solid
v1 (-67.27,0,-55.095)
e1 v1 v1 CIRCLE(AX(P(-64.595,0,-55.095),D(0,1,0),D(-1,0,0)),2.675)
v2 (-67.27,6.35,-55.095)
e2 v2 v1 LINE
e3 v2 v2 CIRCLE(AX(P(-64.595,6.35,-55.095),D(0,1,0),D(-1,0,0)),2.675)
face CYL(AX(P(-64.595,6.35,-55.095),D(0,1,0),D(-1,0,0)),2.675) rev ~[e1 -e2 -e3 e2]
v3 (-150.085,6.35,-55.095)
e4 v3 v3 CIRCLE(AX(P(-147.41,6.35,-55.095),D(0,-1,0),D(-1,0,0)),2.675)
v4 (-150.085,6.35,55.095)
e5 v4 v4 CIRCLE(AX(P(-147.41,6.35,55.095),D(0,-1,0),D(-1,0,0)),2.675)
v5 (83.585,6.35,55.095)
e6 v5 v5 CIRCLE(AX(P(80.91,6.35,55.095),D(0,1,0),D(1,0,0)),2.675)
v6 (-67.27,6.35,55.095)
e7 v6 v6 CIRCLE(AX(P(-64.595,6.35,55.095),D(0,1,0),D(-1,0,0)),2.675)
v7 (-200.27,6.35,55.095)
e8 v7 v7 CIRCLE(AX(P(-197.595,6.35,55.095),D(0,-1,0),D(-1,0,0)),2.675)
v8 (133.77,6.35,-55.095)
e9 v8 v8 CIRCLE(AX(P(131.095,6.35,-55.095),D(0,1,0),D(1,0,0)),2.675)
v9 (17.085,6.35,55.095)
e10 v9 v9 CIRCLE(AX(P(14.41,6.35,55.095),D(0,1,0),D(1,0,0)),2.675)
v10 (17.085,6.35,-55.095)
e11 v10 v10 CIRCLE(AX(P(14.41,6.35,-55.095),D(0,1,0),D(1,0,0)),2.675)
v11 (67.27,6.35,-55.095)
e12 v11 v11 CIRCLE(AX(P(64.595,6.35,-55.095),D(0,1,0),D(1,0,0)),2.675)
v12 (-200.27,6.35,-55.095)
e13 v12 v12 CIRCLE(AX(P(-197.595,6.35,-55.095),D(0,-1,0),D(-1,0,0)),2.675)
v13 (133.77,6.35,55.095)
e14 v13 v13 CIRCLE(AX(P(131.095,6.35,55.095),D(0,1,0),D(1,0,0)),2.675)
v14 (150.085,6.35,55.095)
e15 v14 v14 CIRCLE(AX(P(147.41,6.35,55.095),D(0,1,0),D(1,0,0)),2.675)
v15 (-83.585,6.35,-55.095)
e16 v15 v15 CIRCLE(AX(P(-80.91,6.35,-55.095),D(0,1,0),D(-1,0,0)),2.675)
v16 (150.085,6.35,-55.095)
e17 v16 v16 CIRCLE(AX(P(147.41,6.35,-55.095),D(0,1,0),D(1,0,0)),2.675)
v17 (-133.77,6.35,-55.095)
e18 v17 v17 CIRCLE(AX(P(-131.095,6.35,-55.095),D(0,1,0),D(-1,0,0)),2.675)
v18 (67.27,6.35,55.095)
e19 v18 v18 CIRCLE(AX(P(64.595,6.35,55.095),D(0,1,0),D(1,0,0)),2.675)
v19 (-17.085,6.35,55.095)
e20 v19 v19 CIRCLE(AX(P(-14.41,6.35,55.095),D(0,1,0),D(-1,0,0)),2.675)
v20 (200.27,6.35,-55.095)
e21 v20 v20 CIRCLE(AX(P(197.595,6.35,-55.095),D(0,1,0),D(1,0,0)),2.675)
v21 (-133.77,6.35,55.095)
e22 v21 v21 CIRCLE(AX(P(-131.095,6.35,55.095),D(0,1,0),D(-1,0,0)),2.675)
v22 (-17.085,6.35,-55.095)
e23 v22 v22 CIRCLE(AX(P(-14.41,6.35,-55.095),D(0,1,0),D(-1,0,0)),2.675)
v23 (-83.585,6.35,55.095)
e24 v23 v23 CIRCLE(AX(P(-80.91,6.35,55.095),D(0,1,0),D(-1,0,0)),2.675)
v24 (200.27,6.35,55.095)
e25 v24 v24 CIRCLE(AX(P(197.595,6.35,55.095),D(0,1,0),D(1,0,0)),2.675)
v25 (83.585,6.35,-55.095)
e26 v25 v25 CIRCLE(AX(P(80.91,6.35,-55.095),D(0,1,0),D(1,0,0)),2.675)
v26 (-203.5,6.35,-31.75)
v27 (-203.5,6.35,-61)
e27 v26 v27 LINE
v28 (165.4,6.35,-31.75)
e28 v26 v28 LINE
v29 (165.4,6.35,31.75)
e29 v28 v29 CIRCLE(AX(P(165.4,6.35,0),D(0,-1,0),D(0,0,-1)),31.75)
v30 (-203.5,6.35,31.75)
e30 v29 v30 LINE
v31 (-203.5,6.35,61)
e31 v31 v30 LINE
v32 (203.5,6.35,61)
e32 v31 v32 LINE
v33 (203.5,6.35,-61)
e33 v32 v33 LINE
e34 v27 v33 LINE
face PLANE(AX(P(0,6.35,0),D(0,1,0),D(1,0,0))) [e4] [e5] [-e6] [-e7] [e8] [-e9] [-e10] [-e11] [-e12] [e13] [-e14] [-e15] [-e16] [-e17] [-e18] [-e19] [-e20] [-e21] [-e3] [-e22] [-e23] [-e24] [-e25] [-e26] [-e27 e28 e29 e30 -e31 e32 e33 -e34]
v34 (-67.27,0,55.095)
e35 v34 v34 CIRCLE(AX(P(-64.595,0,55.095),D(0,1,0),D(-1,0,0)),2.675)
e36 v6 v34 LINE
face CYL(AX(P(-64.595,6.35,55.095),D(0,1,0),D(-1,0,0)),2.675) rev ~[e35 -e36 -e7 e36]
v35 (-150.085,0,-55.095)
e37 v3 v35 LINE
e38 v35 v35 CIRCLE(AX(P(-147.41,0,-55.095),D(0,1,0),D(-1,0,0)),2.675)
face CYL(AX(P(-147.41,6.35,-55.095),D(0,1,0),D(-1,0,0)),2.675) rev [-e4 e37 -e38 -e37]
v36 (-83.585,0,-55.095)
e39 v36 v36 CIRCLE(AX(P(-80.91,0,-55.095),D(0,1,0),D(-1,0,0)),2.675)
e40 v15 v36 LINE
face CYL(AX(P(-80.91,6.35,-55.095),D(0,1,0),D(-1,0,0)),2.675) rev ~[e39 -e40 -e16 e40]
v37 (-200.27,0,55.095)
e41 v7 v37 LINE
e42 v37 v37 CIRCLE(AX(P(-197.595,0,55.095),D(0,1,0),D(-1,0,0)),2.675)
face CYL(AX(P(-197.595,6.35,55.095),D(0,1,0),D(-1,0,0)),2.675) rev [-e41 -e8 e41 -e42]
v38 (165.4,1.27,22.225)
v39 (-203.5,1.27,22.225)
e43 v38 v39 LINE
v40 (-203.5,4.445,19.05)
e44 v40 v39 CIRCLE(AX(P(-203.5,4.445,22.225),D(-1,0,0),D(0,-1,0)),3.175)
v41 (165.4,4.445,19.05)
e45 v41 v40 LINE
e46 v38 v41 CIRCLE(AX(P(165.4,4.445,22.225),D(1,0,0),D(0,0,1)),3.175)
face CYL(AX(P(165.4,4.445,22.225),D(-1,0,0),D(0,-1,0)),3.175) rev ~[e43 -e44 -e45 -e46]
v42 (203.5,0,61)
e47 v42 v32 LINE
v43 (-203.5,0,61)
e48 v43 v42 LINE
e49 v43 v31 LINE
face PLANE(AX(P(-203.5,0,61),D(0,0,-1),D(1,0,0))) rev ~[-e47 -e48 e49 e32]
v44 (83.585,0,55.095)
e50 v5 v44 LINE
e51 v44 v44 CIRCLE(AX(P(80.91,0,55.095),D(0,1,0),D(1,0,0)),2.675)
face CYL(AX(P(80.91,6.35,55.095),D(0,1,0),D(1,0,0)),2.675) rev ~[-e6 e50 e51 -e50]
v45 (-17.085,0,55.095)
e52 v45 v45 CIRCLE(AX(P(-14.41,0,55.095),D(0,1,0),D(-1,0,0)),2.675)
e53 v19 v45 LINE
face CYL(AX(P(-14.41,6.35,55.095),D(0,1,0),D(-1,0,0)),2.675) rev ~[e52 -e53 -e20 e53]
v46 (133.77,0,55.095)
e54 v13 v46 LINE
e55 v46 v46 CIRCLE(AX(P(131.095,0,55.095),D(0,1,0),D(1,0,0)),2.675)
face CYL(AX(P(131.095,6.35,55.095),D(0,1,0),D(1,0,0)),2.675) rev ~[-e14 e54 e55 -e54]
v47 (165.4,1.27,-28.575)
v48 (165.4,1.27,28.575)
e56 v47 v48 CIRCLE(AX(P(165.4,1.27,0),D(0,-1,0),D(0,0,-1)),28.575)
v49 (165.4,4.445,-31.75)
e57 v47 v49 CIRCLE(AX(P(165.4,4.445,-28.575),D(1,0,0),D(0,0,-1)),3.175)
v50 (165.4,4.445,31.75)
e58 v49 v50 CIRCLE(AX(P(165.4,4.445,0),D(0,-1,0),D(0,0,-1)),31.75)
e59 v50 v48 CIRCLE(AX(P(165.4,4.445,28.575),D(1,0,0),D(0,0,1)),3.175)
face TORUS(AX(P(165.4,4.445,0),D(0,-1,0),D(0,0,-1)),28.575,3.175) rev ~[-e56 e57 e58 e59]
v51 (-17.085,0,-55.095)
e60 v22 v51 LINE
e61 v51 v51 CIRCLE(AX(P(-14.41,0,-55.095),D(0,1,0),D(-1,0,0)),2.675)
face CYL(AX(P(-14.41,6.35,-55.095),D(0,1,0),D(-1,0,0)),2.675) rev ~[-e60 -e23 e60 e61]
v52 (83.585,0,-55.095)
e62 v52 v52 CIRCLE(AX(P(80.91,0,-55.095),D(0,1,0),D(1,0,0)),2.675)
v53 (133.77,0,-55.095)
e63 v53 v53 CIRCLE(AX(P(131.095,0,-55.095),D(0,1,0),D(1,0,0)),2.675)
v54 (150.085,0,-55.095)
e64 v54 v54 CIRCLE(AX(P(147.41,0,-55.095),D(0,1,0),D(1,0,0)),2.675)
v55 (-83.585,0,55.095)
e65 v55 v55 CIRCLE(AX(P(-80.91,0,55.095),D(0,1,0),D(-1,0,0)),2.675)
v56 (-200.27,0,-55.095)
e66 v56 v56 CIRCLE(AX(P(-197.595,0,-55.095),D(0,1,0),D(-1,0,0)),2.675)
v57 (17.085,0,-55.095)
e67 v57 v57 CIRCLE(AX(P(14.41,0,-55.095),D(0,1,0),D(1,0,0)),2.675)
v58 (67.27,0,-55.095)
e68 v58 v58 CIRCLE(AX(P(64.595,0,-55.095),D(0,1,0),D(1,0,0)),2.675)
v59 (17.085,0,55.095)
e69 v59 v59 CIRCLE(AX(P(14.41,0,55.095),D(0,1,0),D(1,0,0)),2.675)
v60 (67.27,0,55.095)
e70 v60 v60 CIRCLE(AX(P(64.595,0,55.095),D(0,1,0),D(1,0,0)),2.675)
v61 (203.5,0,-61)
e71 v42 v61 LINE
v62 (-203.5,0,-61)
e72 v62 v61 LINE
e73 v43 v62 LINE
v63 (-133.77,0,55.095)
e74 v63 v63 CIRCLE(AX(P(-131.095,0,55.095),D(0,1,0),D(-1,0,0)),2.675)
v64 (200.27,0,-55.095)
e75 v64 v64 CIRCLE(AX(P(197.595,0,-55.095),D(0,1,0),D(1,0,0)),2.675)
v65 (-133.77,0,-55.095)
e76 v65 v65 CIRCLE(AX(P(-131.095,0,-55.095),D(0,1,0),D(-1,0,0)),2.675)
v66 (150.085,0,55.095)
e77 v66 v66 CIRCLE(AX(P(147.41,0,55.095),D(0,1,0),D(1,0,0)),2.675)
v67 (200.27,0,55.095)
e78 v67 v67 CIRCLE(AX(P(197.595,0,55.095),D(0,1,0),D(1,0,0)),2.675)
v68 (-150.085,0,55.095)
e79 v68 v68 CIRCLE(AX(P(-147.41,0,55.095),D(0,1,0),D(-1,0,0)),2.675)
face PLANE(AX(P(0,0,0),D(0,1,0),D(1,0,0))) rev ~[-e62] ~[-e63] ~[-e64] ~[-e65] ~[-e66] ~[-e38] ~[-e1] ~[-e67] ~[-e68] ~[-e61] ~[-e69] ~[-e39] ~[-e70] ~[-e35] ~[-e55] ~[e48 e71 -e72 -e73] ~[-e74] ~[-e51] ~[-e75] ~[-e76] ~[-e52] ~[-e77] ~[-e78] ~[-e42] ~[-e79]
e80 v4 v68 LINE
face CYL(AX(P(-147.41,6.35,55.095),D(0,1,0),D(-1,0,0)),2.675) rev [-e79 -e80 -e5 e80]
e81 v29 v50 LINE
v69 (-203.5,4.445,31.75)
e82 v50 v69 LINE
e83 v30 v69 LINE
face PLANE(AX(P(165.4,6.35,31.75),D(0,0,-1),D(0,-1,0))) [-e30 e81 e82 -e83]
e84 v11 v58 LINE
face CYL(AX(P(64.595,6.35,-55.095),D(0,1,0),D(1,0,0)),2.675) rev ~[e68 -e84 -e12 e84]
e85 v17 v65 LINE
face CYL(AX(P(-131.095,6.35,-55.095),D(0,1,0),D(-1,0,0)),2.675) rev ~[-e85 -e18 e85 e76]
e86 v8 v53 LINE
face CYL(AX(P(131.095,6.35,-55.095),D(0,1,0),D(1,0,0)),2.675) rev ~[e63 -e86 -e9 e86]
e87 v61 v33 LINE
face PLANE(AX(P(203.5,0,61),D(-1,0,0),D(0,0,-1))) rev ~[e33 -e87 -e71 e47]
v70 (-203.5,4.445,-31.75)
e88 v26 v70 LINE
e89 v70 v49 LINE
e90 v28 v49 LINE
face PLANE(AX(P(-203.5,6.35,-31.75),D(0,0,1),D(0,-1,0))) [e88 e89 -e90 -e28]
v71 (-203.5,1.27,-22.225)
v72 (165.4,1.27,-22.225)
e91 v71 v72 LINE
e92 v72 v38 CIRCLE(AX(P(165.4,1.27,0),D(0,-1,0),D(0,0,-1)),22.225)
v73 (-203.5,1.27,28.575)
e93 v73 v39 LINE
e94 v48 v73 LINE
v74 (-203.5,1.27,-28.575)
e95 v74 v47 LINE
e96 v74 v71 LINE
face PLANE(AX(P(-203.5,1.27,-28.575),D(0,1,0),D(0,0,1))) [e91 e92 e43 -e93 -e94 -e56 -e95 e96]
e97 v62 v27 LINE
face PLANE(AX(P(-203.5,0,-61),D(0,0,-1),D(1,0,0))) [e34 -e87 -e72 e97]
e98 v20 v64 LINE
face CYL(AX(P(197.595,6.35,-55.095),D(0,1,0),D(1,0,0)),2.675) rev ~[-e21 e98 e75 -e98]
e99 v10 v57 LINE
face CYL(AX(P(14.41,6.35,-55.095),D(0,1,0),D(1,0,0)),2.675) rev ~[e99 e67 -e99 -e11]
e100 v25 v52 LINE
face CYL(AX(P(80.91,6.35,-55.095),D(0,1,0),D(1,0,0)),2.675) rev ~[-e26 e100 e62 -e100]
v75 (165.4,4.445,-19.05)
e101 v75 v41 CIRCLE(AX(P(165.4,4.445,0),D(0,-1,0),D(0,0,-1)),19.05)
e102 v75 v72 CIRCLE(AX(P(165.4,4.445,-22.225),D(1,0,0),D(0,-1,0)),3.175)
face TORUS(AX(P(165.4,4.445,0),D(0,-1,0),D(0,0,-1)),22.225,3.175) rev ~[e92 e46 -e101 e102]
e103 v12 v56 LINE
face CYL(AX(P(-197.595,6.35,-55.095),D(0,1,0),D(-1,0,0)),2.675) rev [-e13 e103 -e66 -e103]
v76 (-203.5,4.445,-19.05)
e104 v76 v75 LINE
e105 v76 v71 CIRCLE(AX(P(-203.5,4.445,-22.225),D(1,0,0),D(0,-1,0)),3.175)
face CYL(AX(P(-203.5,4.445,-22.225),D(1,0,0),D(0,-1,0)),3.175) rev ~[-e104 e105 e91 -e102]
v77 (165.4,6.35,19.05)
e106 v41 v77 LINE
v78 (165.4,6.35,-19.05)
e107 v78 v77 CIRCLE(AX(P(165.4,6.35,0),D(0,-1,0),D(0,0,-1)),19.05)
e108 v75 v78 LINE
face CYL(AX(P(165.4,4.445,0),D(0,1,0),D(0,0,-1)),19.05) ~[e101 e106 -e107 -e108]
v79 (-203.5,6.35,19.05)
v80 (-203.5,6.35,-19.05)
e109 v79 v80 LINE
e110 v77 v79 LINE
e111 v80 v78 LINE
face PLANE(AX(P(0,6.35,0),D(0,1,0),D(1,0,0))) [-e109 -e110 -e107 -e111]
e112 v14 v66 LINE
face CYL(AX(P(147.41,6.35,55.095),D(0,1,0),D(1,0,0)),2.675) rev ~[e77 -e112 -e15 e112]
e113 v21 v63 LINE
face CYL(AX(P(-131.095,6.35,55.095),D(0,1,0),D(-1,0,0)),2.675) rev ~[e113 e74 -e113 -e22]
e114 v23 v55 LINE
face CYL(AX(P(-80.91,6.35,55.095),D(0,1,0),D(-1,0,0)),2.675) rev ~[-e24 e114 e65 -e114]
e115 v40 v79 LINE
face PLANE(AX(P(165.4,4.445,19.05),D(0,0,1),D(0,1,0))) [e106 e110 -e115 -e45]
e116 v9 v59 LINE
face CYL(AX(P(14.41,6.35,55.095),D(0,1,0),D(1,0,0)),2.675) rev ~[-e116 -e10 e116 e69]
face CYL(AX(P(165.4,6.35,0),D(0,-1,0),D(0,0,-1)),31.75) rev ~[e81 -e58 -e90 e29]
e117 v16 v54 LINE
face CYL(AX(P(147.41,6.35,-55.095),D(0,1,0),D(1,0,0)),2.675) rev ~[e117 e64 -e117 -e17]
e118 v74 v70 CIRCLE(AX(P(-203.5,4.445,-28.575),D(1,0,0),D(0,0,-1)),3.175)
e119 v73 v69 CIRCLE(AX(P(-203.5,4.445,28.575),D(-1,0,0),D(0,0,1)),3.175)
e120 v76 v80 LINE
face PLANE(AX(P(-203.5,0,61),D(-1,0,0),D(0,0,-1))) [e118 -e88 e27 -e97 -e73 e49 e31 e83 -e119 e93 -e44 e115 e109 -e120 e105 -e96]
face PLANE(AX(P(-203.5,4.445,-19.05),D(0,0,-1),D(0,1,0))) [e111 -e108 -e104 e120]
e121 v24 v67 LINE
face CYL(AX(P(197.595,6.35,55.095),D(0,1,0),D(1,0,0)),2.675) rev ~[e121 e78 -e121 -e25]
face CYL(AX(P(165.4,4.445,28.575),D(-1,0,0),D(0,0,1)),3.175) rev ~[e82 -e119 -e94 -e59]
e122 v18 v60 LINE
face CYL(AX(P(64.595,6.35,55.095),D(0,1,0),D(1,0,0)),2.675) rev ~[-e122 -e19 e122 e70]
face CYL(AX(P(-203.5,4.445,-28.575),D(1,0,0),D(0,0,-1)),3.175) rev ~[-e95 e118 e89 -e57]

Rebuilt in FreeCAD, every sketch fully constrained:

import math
import FreeCAD as App
import Part
import Sketcher
Q = App.Units.Quantity

doc = App.newDocument("Part")
body = doc.addObject("PartDesign::Body", "Body")

# Sketch on XZ plane
sketch1 = doc.addObject("Sketcher::SketchObject", "Sketch")
body.addObject(sketch1)
sketch1.AttachmentSupport = (doc.XZ_Plane, [""])
sketch1.MapMode = "FlatFace"
sketch1.addGeometry([
    Part.LineSegment(App.Vector(-204, -61, 0), App.Vector(-204, 61, 0)),
    Part.LineSegment(App.Vector(-204, 61, 0), App.Vector(204, 61, 0)),
    Part.LineSegment(App.Vector(204, 61, 0), App.Vector(204, -61, 0)),
    Part.LineSegment(App.Vector(204, -61, 0), App.Vector(-204, -61, 0)),
], False)
sketch1.addConstraint([
    Sketcher.Constraint("Coincident", 0, 2, 1, 1),
    Sketcher.Constraint("Coincident", 1, 2, 2, 1),
    Sketcher.Constraint("Coincident", 2, 2, 3, 1),
    Sketcher.Constraint("Coincident", 3, 2, 0, 1),
    Sketcher.Constraint("Vertical", 0),
    Sketcher.Constraint("Horizontal", 1),
    Sketcher.Constraint("Vertical", 2),
    Sketcher.Constraint("Horizontal", 3),
    Sketcher.Constraint("Symmetric", 0, 2, 2, 2, -1, 1),
    Sketcher.Constraint("DistanceX", 1, 1, 1, 2, Q("407 mm")),
    Sketcher.Constraint("DistanceY", 0, 1, 0, 2, Q("122 mm")),
])
pad1 = doc.addObject("PartDesign::Pad", "Pad")
body.addObject(pad1)
pad1.Profile = sketch1
pad1.Length = Q("0.25 in")
pad1.Reversed = True

# Sketch on XZ plane
sketch2 = doc.addObject("Sketcher::SketchObject", "Sketch001")
body.addObject(sketch2)
sketch2.AttachmentSupport = (doc.XZ_Plane, [""])
sketch2.MapMode = "FlatFace"
sketch2.AttachmentOffset = App.Placement(App.Vector(0, 0, -0.25 * 25.4), App.Rotation())
sketch2.addGeometry([
    Part.Circle(App.Vector(197.6, -55.1, 0), App.Vector(0, 0, 1), 2.7),
    Part.Circle(App.Vector(197.6, 55.1, 0), App.Vector(0, 0, 1), 2.7),
    Part.Circle(App.Vector(147.4, 55.1, 0), App.Vector(0, 0, 1), 2.7),
    Part.Circle(App.Vector(147.4, -55.1, 0), App.Vector(0, 0, 1), 2.7),
], False)
sketch2.addConstraint([
    Sketcher.Constraint("Equal", 0, 1),
    Sketcher.Constraint("Equal", 1, 2),
    Sketcher.Constraint("Equal", 2, 3),
    Sketcher.Constraint("Symmetric", 0, 3, 1, 3, -1),
    Sketcher.Constraint("Symmetric", 2, 3, 3, 3, -1),
    Sketcher.Constraint("Horizontal", 1, 3, 2, 3),
    Sketcher.Constraint("Diameter", 0, Q("5.35 mm")),
    Sketcher.Constraint("DistanceX", -1, 1, 0, 3, Q("197.595 mm")),
    Sketcher.Constraint("DistanceY", 0, 3, -1, 1, Q("55.095 mm")),
    Sketcher.Constraint("DistanceX", -1, 1, 2, 3, Q("147.41 mm")),
])
pocket1 = doc.addObject("PartDesign::Pocket", "Pocket")
body.addObject(pocket1)
pocket1.Profile = sketch2
pocket1.Type = "ThroughAll"
pocket1.Reversed = True
doc.recompute()

linearpattern = doc.addObject("PartDesign::LinearPattern", "LinearPattern")
body.addObject(linearpattern)
linearpattern.Originals = [pocket1]
linearpattern.Direction = (doc.X_Axis, [""])
linearpattern.Mode = "offset"
linearpattern.Offset = 66.5
linearpattern.Occurrences = 3
linearpattern.Reversed = True
body.Tip = linearpattern
doc.recompute()

mirrored = doc.addObject("PartDesign::Mirrored", "Mirrored")
body.addObject(mirrored)
mirrored.Originals = [pocket1]
mirrored.MirrorPlane = (doc.YZ_Plane, [""])
body.Tip = mirrored

# Sketch on XZ plane
sketch3 = doc.addObject("Sketcher::SketchObject", "Sketch002")
body.addObject(sketch3)
sketch3.AttachmentSupport = (doc.XZ_Plane, [""])
sketch3.MapMode = "FlatFace"
sketch3.AttachmentOffset = App.Placement(App.Vector(0, 0, -0.25 * 25.4), App.Rotation())
sketch3.addGeometry([
    Part.Circle(App.Vector(-131.1, -55.1, 0), App.Vector(0, 0, 1), 2.7),
    Part.Circle(App.Vector(-131.1, 55.1, 0), App.Vector(0, 0, 1), 2.7),
    Part.Circle(App.Vector(-80.9, 55.1, 0), App.Vector(0, 0, 1), 2.7),
    Part.Circle(App.Vector(-80.9, -55.1, 0), App.Vector(0, 0, 1), 2.7),
], False)
sketch3.addConstraint([
    Sketcher.Constraint("Equal", 0, 1),
    Sketcher.Constraint("Equal", 1, 2),
    Sketcher.Constraint("Equal", 2, 3),
    Sketcher.Constraint("Symmetric", 0, 3, 1, 3, -1),
    Sketcher.Constraint("Symmetric", 2, 3, 3, 3, -1),
    Sketcher.Constraint("Horizontal", 1, 3, 2, 3),
    Sketcher.Constraint("Diameter", 0, Q("5.35 mm")),
    Sketcher.Constraint("DistanceX", 0, 3, -1, 1, Q("131.095 mm")),
    Sketcher.Constraint("DistanceY", 0, 3, -1, 1, Q("55.095 mm")),
    Sketcher.Constraint("DistanceX", 2, 3, -1, 1, Q("80.91 mm")),
])
pocket2 = doc.addObject("PartDesign::Pocket", "Pocket001")
body.addObject(pocket2)
pocket2.Profile = sketch3
pocket2.Type = "ThroughAll"
pocket2.Reversed = True

# Sketch on XZ plane
sketch4 = doc.addObject("Sketcher::SketchObject", "Sketch003")
body.addObject(sketch4)
sketch4.AttachmentSupport = (doc.XZ_Plane, [""])
sketch4.MapMode = "FlatFace"
sketch4.AttachmentOffset = App.Placement(App.Vector(0, 0, -0.25 * 25.4), App.Rotation())
sketch4.addGeometry([
    Part.Circle(App.Vector(-64.6, -55.1, 0), App.Vector(0, 0, 1), 2.7),
    Part.Circle(App.Vector(-64.6, 55.1, 0), App.Vector(0, 0, 1), 2.7),
    Part.Circle(App.Vector(-14.4, 55.1, 0), App.Vector(0, 0, 1), 2.7),
    Part.Circle(App.Vector(-14.4, -55.1, 0), App.Vector(0, 0, 1), 2.7),
], False)
sketch4.addConstraint([
    Sketcher.Constraint("Equal", 0, 1),
    Sketcher.Constraint("Equal", 1, 2),
    Sketcher.Constraint("Equal", 2, 3),
    Sketcher.Constraint("Symmetric", 0, 3, 1, 3, -1),
    Sketcher.Constraint("Symmetric", 2, 3, 3, 3, -1),
    Sketcher.Constraint("Horizontal", 1, 3, 2, 3),
    Sketcher.Constraint("Diameter", 0, Q("5.35 mm")),
    Sketcher.Constraint("DistanceX", 0, 3, -1, 1, Q("64.595 mm")),
    Sketcher.Constraint("DistanceY", 0, 3, -1, 1, Q("55.095 mm")),
    Sketcher.Constraint("DistanceX", 2, 3, -1, 1, Q("14.41 mm")),
])
pocket3 = doc.addObject("PartDesign::Pocket", "Pocket002")
body.addObject(pocket3)
pocket3.Profile = sketch4
pocket3.Type = "ThroughAll"
pocket3.Reversed = True

# Sketch on YZ plane
sketch5 = doc.addObject("Sketcher::SketchObject", "Sketch004")
body.addObject(sketch5)
sketch5.AttachmentSupport = (doc.YZ_Plane, [""])
sketch5.MapMode = "FlatFace"
sketch5.AttachmentOffset = App.Placement(App.Vector(0, 0, -203.5), App.Rotation())
sketch5.addGeometry([
    Part.LineSegment(App.Vector(1.3, -28.6, 0), App.Vector(1.3, -22.2, 0)),  # 0
    Part.ArcOfCircle(Part.Circle(App.Vector(4.4, -22.2, 0), App.Vector(0, 0, 1), 3.2), math.radians(90), math.radians(180)),  # 1
    Part.LineSegment(App.Vector(4.4, -19.1, 0), App.Vector(6.3, -19.1, 0)),  # 2
    Part.LineSegment(App.Vector(6.3, -19.1, 0), App.Vector(6.3, -31.8, 0)),  # 3
    Part.LineSegment(App.Vector(6.3, -31.8, 0), App.Vector(4.4, -31.8, 0)),  # 4
    Part.ArcOfCircle(Part.Circle(App.Vector(4.4, -28.6, 0), App.Vector(0, 0, 1), 3.2), math.radians(-180), math.radians(-90)),  # 5
], False)
sketch5.addConstraint([
    Sketcher.Constraint("Tangent", 0, 2, 1, 2),
    Sketcher.Constraint("Tangent", 1, 1, 2, 1),
    Sketcher.Constraint("Coincident", 2, 2, 3, 1),
    Sketcher.Constraint("Coincident", 3, 2, 4, 1),
    Sketcher.Constraint("Tangent", 4, 2, 5, 2),
    Sketcher.Constraint("Tangent", 5, 1, 0, 1),
    Sketcher.Constraint("Vertical", 0),
    Sketcher.Constraint("Horizontal", 2),
    Sketcher.Constraint("Vertical", 3),
    Sketcher.Constraint("Horizontal", 4),
    Sketcher.Constraint("Equal", 1, 5),
    Sketcher.Constraint("DistanceY", 3, 2, 3, 1, Q("0.5 in")),
    Sketcher.Constraint("Radius", 1, Q("0.125 in")),
    Sketcher.Constraint("DistanceX", 0, 2, 2, 2, Q("0.2 in")),
    Sketcher.Constraint("DistanceX", -1, 1, 0, 2, Q("0.05 in")),
    Sketcher.Constraint("DistanceY", 1, 1, -1, 1, Q("0.75 in")),
])

# Sketch on XZ plane
sketch6 = doc.addObject("Sketcher::SketchObject", "Sketch005")
body.addObject(sketch6)
sketch6.AttachmentSupport = (doc.XZ_Plane, [""])
sketch6.MapMode = "FlatFace"
sketch6.AttachmentOffset = App.Placement(App.Vector(0, 0, -0.25 * 25.4), App.Rotation())
sketch6.addGeometry([
    Part.LineSegment(App.Vector(-204, -25, 0), App.Vector(165, -25, 0)),
    Part.ArcOfCircle(Part.Circle(App.Vector(165, 0, 0), App.Vector(0, 0, 1), 25), math.radians(-90), math.radians(90)),
    Part.LineSegment(App.Vector(165, 25, 0), App.Vector(-204, 25, 0)),
], False)
sketch6.addConstraint([
    Sketcher.Constraint("Tangent", 0, 2, 1, 1),
    Sketcher.Constraint("Tangent", 1, 2, 2, 1),
    Sketcher.Constraint("Horizontal", 0),
    Sketcher.Constraint("Horizontal", 2),
    Sketcher.Constraint("Symmetric", 0, 1, 2, 2, -1),
    Sketcher.Constraint("Radius", 1, Q("1 in")),
    Sketcher.Constraint("DistanceX", 0, 1, 0, 2, Q("368.9 mm")),
    Sketcher.Constraint("DistanceX", -1, 1, 1, 3, Q("165.4 mm")),
])
doc.recompute()

subtractivepipe = doc.addObject("PartDesign::SubtractivePipe", "SubtractivePipe")
body.addObject(subtractivepipe)
subtractivepipe.Profile = sketch5
subtractivepipe.Spine = (sketch6, ["Edge1", "Edge2", "Edge3"])

doc.recompute()
